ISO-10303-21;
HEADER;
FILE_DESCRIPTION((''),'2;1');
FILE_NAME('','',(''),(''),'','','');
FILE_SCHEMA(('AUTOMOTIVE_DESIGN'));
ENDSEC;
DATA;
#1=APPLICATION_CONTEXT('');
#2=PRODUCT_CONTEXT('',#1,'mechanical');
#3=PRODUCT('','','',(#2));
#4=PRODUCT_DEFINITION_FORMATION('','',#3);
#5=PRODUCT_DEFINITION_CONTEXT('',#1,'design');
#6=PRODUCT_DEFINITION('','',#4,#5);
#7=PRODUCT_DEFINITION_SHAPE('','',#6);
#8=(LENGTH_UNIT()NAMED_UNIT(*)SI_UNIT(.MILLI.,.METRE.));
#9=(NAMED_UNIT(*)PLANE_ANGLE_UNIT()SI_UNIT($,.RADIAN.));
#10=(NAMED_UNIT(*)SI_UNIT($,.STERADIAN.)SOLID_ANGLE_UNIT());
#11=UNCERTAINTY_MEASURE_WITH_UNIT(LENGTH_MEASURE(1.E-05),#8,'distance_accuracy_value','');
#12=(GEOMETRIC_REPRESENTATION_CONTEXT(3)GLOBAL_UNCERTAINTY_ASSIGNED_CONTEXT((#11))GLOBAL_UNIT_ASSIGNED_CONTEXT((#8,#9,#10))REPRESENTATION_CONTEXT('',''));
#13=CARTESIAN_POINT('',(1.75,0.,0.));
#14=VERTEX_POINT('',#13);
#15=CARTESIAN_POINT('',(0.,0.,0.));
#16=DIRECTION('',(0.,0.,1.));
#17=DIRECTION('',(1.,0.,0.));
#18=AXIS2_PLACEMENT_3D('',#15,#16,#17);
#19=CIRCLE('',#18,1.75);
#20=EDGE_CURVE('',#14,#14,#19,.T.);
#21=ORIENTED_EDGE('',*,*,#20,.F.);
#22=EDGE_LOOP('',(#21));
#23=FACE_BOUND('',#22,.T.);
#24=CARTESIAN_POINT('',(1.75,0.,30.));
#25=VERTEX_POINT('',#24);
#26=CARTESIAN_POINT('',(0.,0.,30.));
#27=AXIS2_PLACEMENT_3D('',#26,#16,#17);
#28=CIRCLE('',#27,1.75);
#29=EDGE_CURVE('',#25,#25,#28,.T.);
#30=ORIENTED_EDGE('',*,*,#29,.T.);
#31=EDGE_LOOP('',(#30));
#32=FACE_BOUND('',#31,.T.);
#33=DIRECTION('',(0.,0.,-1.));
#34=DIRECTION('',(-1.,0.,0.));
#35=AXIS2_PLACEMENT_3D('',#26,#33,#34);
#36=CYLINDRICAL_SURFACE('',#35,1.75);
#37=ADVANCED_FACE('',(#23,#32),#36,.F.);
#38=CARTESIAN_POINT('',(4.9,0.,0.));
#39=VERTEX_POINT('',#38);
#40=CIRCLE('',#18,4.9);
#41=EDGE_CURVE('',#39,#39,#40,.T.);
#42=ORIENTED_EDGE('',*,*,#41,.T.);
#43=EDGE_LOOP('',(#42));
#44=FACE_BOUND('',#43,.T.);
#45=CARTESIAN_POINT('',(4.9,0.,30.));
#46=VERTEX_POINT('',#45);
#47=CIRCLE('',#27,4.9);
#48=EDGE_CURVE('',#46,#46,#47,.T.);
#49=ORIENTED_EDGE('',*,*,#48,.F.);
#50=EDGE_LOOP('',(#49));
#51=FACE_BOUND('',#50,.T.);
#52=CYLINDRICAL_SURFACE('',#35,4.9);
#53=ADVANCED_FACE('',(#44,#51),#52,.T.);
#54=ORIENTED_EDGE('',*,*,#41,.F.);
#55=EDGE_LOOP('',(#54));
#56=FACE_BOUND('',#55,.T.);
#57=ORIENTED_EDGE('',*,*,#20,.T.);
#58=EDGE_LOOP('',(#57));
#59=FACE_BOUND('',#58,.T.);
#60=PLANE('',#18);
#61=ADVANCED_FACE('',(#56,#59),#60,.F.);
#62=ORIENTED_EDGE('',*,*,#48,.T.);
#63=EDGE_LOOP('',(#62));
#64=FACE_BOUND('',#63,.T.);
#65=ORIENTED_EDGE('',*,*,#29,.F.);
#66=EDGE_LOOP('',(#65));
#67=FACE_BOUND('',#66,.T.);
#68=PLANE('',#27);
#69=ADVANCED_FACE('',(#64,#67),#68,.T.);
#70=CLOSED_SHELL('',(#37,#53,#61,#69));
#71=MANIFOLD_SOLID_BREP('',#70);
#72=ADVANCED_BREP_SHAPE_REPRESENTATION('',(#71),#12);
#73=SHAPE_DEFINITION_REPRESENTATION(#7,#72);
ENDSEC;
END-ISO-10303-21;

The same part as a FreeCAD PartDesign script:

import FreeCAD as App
import Part
import Sketcher

V = App.Vector
Q = App.Units.Quantity

doc = App.newDocument("Part")
params = doc.addObject("Spreadsheet::Sheet", "Params")
for row, (alias, value) in enumerate([
    ("sketch1_diameter", "9.8 mm"),
    ("sketch1_diameter2", "3.5 mm"),
    ("pad1_length", "30 mm"),
], start=1):
    params.set(f"A{row}", alias)
    params.set(f"B{row}", "=" + value)
    params.setAlias(f"B{row}", alias)

body = doc.addObject("PartDesign::Body", "Body")

# Sketch on XY plane
sketch1 = doc.addObject("Sketcher::SketchObject", "Sketch")
body.addObject(sketch1)
sketch1.AttachmentSupport = (doc.XY_Plane, [""])
sketch1.MapMode = "FlatFace"
sketch1.addGeometry([
    Part.Circle(V(0, 0, 0), V(0, 0, 1), 4.9),
    Part.Circle(V(0, 0, 0), V(0, 0, 1), 1.8),
], False)
sketch1.addConstraint([
    Sketcher.Constraint("Coincident", 0, 3, -1, 1),
    Sketcher.Constraint("Coincident", 1, 3, -1, 1),
    Sketcher.Constraint("Diameter", 0, Q("9.8 mm")),
    Sketcher.Constraint("Diameter", 1, Q("3.5 mm")),
])
sketch1.setExpression("Constraints[2]", "Params.sketch1_diameter")
sketch1.setExpression("Constraints[3]", "Params.sketch1_diameter2")
pad1 = doc.addObject("PartDesign::Pad", "Pad")
body.addObject(pad1)
pad1.Profile = sketch1
pad1.setExpression("Length", "Params.pad1_length")

doc.recompute()
